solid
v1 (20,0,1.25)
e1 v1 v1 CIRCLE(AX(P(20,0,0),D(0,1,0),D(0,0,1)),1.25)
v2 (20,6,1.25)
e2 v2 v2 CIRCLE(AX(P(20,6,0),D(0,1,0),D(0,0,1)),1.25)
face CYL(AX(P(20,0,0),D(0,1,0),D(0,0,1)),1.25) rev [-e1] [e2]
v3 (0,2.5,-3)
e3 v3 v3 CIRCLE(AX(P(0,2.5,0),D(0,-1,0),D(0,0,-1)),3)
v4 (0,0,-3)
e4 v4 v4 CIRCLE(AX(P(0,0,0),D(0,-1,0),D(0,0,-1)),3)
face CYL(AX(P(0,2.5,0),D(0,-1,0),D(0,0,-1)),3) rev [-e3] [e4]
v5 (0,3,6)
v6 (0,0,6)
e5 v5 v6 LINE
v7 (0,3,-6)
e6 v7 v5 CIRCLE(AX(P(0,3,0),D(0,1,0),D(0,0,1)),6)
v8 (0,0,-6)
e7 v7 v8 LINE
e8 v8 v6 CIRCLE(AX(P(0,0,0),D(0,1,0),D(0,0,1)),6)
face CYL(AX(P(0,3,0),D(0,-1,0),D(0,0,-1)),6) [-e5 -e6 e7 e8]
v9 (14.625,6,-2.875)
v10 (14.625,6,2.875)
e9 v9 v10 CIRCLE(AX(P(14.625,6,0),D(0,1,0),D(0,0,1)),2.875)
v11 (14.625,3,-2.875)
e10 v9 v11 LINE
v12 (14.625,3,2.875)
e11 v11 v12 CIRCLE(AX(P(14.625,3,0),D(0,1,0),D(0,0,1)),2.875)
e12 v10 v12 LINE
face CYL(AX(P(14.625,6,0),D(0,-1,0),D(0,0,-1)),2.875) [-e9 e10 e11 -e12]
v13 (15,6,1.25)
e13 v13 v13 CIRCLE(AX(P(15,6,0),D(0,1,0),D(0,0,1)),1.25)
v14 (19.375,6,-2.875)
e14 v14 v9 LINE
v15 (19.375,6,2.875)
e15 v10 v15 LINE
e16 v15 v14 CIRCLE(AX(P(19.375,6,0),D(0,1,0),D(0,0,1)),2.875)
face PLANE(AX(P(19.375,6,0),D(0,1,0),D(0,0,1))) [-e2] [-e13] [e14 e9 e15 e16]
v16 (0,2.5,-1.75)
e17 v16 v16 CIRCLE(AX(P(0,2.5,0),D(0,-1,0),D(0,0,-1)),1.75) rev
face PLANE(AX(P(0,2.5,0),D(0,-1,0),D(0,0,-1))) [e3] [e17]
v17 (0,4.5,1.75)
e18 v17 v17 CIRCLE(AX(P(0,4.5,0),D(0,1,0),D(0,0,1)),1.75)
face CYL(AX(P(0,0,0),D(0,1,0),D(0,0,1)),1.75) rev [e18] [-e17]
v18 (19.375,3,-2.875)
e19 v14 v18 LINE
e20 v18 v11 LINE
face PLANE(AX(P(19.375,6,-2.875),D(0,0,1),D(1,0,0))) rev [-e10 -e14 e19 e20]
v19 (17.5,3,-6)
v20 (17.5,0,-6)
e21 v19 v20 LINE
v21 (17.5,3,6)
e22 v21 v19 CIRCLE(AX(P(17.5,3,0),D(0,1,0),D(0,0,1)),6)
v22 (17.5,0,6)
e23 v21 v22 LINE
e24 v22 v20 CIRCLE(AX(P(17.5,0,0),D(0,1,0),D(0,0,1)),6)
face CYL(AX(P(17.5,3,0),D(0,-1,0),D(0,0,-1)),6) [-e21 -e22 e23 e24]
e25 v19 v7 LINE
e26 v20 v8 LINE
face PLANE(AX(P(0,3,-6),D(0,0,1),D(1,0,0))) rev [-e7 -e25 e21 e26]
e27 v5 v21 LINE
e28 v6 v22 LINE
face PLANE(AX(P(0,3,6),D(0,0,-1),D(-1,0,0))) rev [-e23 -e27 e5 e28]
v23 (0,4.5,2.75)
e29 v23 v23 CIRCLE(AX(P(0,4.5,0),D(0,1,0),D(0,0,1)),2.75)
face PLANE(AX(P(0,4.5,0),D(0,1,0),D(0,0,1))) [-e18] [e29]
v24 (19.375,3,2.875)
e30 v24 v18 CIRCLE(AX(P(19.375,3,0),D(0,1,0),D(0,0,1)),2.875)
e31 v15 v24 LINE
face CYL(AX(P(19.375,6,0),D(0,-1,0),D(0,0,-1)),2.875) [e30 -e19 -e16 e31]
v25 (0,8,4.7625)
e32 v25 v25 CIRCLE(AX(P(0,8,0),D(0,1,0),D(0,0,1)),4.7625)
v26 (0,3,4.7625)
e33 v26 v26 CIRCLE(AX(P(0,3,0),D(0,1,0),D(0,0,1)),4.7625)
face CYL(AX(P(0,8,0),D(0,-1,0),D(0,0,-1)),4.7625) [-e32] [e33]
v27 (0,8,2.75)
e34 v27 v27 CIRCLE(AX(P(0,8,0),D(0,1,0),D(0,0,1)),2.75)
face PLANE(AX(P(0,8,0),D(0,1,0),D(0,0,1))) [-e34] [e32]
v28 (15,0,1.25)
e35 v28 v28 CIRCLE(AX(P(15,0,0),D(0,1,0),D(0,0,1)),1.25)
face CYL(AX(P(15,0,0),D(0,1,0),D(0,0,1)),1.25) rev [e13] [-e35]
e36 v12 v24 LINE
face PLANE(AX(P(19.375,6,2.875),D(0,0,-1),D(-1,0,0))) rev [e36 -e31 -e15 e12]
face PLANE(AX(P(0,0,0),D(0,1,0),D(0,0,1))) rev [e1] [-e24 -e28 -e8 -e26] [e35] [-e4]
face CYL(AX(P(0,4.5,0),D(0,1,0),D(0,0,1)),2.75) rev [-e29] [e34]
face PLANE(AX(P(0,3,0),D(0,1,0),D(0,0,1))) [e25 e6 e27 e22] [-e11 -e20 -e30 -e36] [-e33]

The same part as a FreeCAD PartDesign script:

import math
import FreeCAD as App
import Part
import Sketcher

doc = App.newDocument("Part")
params = doc.addObject("Spreadsheet::Sheet", "Params")
for row, (alias, value) in enumerate([
    ("sketch1_radius", "6 mm"),
    ("sketch1_width", "17.5 mm"),
    ("pad1_length", "3 mm"),
    ("pad2_length", "5 mm"),
    ("sketch3_width", "4.75 mm"),
    ("pad3_length", "3 mm"),
    ("sketch4_diameter", "5.5 mm"),
    ("pocket1_length", "3.5 mm"),
    ("sketch5_diameter", "2.5 mm"),
    ("sketch6_diameter", "3.5 mm"),
    ("sketch7_diameter", "6 mm"),
    ("pocket4_length", "2.5 mm"),
], start=1):
    params.set(f"A{row}", alias)
    params.set(f"B{row}", "=" + value)
    params.setAlias(f"B{row}", alias)

body = doc.addObject("PartDesign::Body", "Body")

# Sketch on XZ plane
sketch1 = body.newObject("Sketcher::SketchObject", "Sketch")
sketch1.AttachmentSupport = (doc.getObject("XZ_Plane"), [""])
sketch1.MapMode = "FlatFace"
sketch1.addGeometry(Part.LineSegment(App.Vector(18, -6, 0), App.Vector(0, -6, 0)), False)
sketch1.addGeometry(Part.ArcOfCircle(Part.Circle(App.Vector(0, 0, 0), App.Vector(0, 0, 1), 6), math.radians(90), math.radians(270)), False)
sketch1.addGeometry(Part.LineSegment(App.Vector(0, 6, 0), App.Vector(18, 6, 0)), False)
sketch1.addGeometry(Part.ArcOfCircle(Part.Circle(App.Vector(18, 0, 0), App.Vector(0, 0, 1), 6), math.radians(-90), math.radians(90)), False)
sketch1.addConstraint(Sketcher.Constraint("Tangent", 0, 2, 1, 2))
sketch1.addConstraint(Sketcher.Constraint("Tangent", 1, 1, 2, 1))
sketch1.addConstraint(Sketcher.Constraint("Tangent", 2, 2, 3, 2))
sketch1.addConstraint(Sketcher.Constraint("Tangent", 3, 1, 0, 1))
sketch1.addConstraint(Sketcher.Constraint("Horizontal", 0))
sketch1.addConstraint(Sketcher.Constraint("Horizontal", 2))
sketch1.addConstraint(Sketcher.Constraint("Coincident", 1, 3, -1, 1))
sketch1.addConstraint(Sketcher.Constraint("Radius", 1, 6.0))
sketch1.addConstraint(Sketcher.Constraint("DistanceX", 0, 2, 0, 1, 17.5))
sketch1.setExpression("Constraints[7]", "Params.sketch1_radius")
sketch1.setExpression("Constraints[8]", "Params.sketch1_width")
pad1 = body.newObject("PartDesign::Pad", "Pad")
pad1.Profile = sketch1
pad1.setExpression("Length", "Params.pad1_length")
pad1.Reversed = True

# Sketch on XZ plane
sketch2 = body.newObject("Sketcher::SketchObject", "Sketch001")
sketch2.AttachmentSupport = (doc.getObject("XZ_Plane"), [""])
sketch2.MapMode = "FlatFace"
sketch2.AttachmentOffset = App.Placement(App.Vector(0, 0, -3), App.Rotation())
sketch2.addGeometry(Part.Circle(App.Vector(0, 0, 0), App.Vector(0, 0, 1), 4.8), False)
sketch2.addConstraint(Sketcher.Constraint("Coincident", 0, 3, -1, 1))
sketch2.addConstraint(Sketcher.Constraint("Diameter", 0, 9.525))
pad2 = body.newObject("PartDesign::Pad", "Pad001")
pad2.Profile = sketch2
pad2.setExpression("Length", "Params.pad2_length")
pad2.Reversed = True

# Sketch on XZ plane
sketch3 = body.newObject("Sketcher::SketchObject", "Sketch002")
sketch3.AttachmentSupport = (doc.getObject("XZ_Plane"), [""])
sketch3.MapMode = "FlatFace"
sketch3.AttachmentOffset = App.Placement(App.Vector(0, 0, -3), App.Rotation())
sketch3.addGeometry(Part.LineSegment(App.Vector(14.6, 2.9, 0), App.Vector(19.4, 2.9, 0)), False)
sketch3.addGeometry(Part.ArcOfCircle(Part.Circle(App.Vector(19.4, 0, 0), App.Vector(0, 0, 1), 2.9), math.radians(-90), math.radians(90)), False)
sketch3.addGeometry(Part.LineSegment(App.Vector(19.4, -2.9, 0), App.Vector(14.6, -2.9, 0)), False)
sketch3.addGeometry(Part.ArcOfCircle(Part.Circle(App.Vector(14.6, 0, 0), App.Vector(0, 0, 1), 2.9), math.radians(90), math.radians(270)), False)
sketch3.addConstraint(Sketcher.Constraint("Tangent", 0, 2, 1, 2))
sketch3.addConstraint(Sketcher.Constraint("Tangent", 1, 1, 2, 1))
sketch3.addConstraint(Sketcher.Constraint("Tangent", 2, 2, 3, 2))
sketch3.addConstraint(Sketcher.Constraint("Tangent", 3, 1, 0, 1))
sketch3.addConstraint(Sketcher.Constraint("Horizontal", 0))
sketch3.addConstraint(Sketcher.Constraint("Horizontal", 2))
sketch3.addConstraint(Sketcher.Constraint("PointOnObject", 1, 3, -1))
sketch3.addConstraint(Sketcher.Constraint("Radius", 1, 2.875))
sketch3.addConstraint(Sketcher.Constraint("DistanceX", 0, 1, 0, 2, 4.75))
sketch3.addConstraint(Sketcher.Constraint("DistanceX", -1, 1, 1, 3, 19.375))
sketch3.setExpression("Constraints[8]", "Params.sketch3_width")
pad3 = body.newObject("PartDesign::Pad", "Pad002")
pad3.Profile = sketch3
pad3.setExpression("Length", "Params.pad3_length")
pad3.Reversed = True

# Sketch on XZ plane
sketch4 = body.newObject("Sketcher::SketchObject", "Sketch003")
sketch4.AttachmentSupport = (doc.getObject("XZ_Plane"), [""])
sketch4.MapMode = "FlatFace"
sketch4.AttachmentOffset = App.Placement(App.Vector(0, 0, -8), App.Rotation())
sketch4.addGeometry(Part.Circle(App.Vector(0, 0, 0), App.Vector(0, 0, 1), 2.8), False)
sketch4.addConstraint(Sketcher.Constraint("Coincident", 0, 3, -1, 1))
sketch4.addConstraint(Sketcher.Constraint("Diameter", 0, 5.5))
sketch4.setExpression("Constraints[1]", "Params.sketch4_diameter")
pocket1 = body.newObject("PartDesign::Pocket", "Pocket")
pocket1.Profile = sketch4
pocket1.setExpression("Length", "Params.pocket1_length")
pocket1.Reversed = True

# Sketch on XZ plane
sketch5 = body.newObject("Sketcher::SketchObject", "Sketch004")
sketch5.AttachmentSupport = (doc.getObject("XZ_Plane"), [""])
sketch5.MapMode = "FlatFace"
sketch5.AttachmentOffset = App.Placement(App.Vector(0, 0, -6), App.Rotation())
sketch5.addGeometry(Part.Circle(App.Vector(20, 0, 0), App.Vector(0, 0, 1), 1.2), False)
sketch5.addGeometry(Part.Circle(App.Vector(15, 0, 0), App.Vector(0, 0, 1), 1.2), False)
sketch5.addConstraint(Sketcher.Constraint("Equal", 0, 1))
sketch5.addConstraint(Sketcher.Constraint("PointOnObject", 0, 3, -1))
sketch5.addConstraint(Sketcher.Constraint("PointOnObject", 1, 3, -1))
sketch5.addConstraint(Sketcher.Constraint("Diameter", 0, 2.5))
sketch5.addConstraint(Sketcher.Constraint("DistanceX", -1, 1, 0, 3, 20.0))
sketch5.addConstraint(Sketcher.Constraint("DistanceX", -1, 1, 1, 3, 15.0))
sketch5.setExpression("Constraints[3]", "Params.sketch5_diameter")
pocket2 = body.newObject("PartDesign::Pocket", "Pocket001")
pocket2.Profile = sketch5
pocket2.Type = "ThroughAll"
pocket2.Reversed = True

# Sketch on XZ plane
sketch6 = body.newObject("Sketcher::SketchObject", "Sketch005")
sketch6.AttachmentSupport = (doc.getObject("XZ_Plane"), [""])
sketch6.MapMode = "FlatFace"
sketch6.AttachmentOffset = App.Placement(App.Vector(0, 0, -4.5), App.Rotation())
sketch6.addGeometry(Part.Circle(App.Vector(0, 0, 0), App.Vector(0, 0, 1), 1.8), False)
sketch6.addConstraint(Sketcher.Constraint("Coincident", 0, 3, -1, 1))
sketch6.addConstraint(Sketcher.Constraint("Diameter", 0, 3.5))
sketch6.setExpression("Constraints[1]", "Params.sketch6_diameter")
pocket3 = body.newObject("PartDesign::Pocket", "Pocket002")
pocket3.Profile = sketch6
pocket3.Type = "ThroughAll"
pocket3.Reversed = True

# Sketch on XZ plane
sketch7 = body.newObject("Sketcher::SketchObject", "Sketch006")
sketch7.AttachmentSupport = (doc.getObject("XZ_Plane"), [""])
sketch7.MapMode = "FlatFace"
sketch7.addGeometry(Part.Circle(App.Vector(0, 0, 0), App.Vector(0, 0, 1), 3), False)
sketch7.addConstraint(Sketcher.Constraint("Coincident", 0, 3, -1, 1))
sketch7.addConstraint(Sketcher.Constraint("Diameter", 0, 6.0))
sketch7.setExpression("Constraints[1]", "Params.sketch7_diameter")
pocket4 = body.newObject("PartDesign::Pocket", "Pocket003")
pocket4.Profile = sketch7
pocket4.setExpression("Length", "Params.pocket4_length")

doc.recompute()
